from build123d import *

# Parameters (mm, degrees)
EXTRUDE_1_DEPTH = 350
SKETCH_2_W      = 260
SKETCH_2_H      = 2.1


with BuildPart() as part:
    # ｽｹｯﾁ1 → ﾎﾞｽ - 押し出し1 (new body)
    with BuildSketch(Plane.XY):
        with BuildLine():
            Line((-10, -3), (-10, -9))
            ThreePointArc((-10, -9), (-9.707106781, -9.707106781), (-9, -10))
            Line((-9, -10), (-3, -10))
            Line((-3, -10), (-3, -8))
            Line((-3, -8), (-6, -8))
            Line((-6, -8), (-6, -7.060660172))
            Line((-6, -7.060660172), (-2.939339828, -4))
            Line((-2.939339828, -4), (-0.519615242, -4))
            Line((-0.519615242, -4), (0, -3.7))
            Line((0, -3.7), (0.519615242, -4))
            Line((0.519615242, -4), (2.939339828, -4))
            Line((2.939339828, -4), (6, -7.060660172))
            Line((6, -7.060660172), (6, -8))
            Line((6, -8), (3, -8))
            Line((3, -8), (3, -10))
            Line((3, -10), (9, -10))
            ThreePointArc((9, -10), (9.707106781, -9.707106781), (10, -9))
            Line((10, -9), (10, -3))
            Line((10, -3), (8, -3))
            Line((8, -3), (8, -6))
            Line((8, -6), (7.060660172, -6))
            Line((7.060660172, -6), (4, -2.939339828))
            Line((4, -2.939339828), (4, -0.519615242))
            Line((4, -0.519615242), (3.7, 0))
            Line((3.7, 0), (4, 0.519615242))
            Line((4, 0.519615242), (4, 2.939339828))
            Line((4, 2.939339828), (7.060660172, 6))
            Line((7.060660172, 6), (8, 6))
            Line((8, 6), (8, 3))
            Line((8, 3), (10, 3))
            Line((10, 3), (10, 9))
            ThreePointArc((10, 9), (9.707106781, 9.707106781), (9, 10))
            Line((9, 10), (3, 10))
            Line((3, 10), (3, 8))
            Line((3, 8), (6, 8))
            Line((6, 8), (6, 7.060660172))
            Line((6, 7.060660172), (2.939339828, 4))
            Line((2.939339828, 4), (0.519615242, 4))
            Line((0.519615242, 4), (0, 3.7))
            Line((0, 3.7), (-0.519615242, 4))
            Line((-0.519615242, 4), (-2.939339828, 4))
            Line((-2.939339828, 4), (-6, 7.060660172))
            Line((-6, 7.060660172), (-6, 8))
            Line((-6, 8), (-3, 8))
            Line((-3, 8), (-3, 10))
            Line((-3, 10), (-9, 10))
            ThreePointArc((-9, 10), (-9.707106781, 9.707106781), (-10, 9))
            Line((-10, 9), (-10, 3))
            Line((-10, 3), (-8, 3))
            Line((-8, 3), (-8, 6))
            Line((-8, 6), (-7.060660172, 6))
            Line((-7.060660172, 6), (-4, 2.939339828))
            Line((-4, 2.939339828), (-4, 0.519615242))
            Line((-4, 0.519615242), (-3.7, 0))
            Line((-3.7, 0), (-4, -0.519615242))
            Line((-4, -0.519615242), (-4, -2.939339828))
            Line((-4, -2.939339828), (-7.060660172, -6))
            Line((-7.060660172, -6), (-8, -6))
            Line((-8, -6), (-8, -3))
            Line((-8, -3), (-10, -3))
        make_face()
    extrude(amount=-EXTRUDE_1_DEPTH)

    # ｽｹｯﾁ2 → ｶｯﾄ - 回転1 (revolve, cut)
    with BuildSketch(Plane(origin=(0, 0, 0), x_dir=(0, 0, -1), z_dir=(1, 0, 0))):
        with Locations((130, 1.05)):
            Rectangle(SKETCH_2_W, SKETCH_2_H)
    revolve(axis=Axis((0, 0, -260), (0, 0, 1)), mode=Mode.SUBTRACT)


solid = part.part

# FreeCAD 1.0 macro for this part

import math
import FreeCAD as App
import Part
import Sketcher
from FreeCAD import Vector
Q = App.Units.Quantity


def add_polygon(sketch, points):
    """Adds a closed chain of lines whose ends are joined by coincident constraints."""
    first, n = sketch.GeometryCount, len(points)
    for a, b in zip(points, points[1:] + points[:1]):
        sketch.addGeometry(Part.LineSegment(App.Vector(*a, 0), App.Vector(*b, 0)), False)
    for i in range(n):
        sketch.addConstraint(Sketcher.Constraint("Coincident", first + i, 2, first + (i + 1) % n, 1))

doc = App.newDocument("Part")
body = doc.addObject("PartDesign::Body", "Body")

# Sketch on XY plane
sketch1 = doc.addObject("Sketcher::SketchObject", "Sketch")
body.addObject(sketch1)
sketch1.AttachmentSupport = (doc.XY_Plane, [""])
sketch1.MapMode = "FlatFace"
sketch1.addGeometry([
    Part.LineSegment(Vector(-10, -3, 0), Vector(-10, -9, 0)),  # 0
    Part.ArcOfCircle(Part.Circle(Vector(-9, -9, 0), Vector(0, 0, 1), 1), math.radians(-180), math.radians(-90)),  # 1
    Part.LineSegment(Vector(-9, -10, 0), Vector(-3, -10, 0)),  # 2
    Part.LineSegment(Vector(-3, -10, 0), Vector(-3, -8, 0)),  # 3
    Part.LineSegment(Vector(-3, -8, 0), Vector(-6, -8, 0)),  # 4
    Part.LineSegment(Vector(-6, -8, 0), Vector(-6, -7.1, 0)),  # 5
    Part.LineSegment(Vector(-6, -7.1, 0), Vector(-2.9, -4, 0)),  # 6
    Part.LineSegment(Vector(-2.9, -4, 0), Vector(-0.5, -4, 0)),  # 7
    Part.LineSegment(Vector(-0.5, -4, 0), Vector(0, -3.7, 0)),  # 8
    Part.LineSegment(Vector(0, -3.7, 0), Vector(0.5, -4, 0)),  # 9
    Part.LineSegment(Vector(0.5, -4, 0), Vector(2.9, -4, 0)),  # 10
    Part.LineSegment(Vector(2.9, -4, 0), Vector(6, -7.1, 0)),  # 11
    Part.LineSegment(Vector(6, -7.1, 0), Vector(6, -8, 0)),  # 12
    Part.LineSegment(Vector(6, -8, 0), Vector(3, -8, 0)),  # 13
    Part.LineSegment(Vector(3, -8, 0), Vector(3, -10, 0)),  # 14
    Part.LineSegment(Vector(3, -10, 0), Vector(9, -10, 0)),  # 15
    Part.ArcOfCircle(Part.Circle(Vector(9, -9, 0), Vector(0, 0, 1), 1), math.radians(-90), math.radians(0)),  # 16
    Part.LineSegment(Vector(10, -9, 0), Vector(10, -3, 0)),  # 17
    Part.LineSegment(Vector(10, -3, 0), Vector(8, -3, 0)),  # 18
    Part.LineSegment(Vector(8, -3, 0), Vector(8, -6, 0)),  # 19
    Part.LineSegment(Vector(8, -6, 0), Vector(7.1, -6, 0)),  # 20
    Part.LineSegment(Vector(7.1, -6, 0), Vector(4, -2.9, 0)),  # 21
    Part.LineSegment(Vector(4, -2.9, 0), Vector(4, -0.5, 0)),  # 22
    Part.LineSegment(Vector(4, -0.5, 0), Vector(3.7, 0, 0)),  # 23
    Part.LineSegment(Vector(3.7, 0, 0), Vector(4, 0.5, 0)),  # 24
    Part.LineSegment(Vector(4, 0.5, 0), Vector(4, 2.9, 0)),  # 25
    Part.LineSegment(Vector(4, 2.9, 0), Vector(7.1, 6, 0)),  # 26
    Part.LineSegment(Vector(7.1, 6, 0), Vector(8, 6, 0)),  # 27
    Part.LineSegment(Vector(8, 6, 0), Vector(8, 3, 0)),  # 28
    Part.LineSegment(Vector(8, 3, 0), Vector(10, 3, 0)),  # 29
    Part.LineSegment(Vector(10, 3, 0), Vector(10, 9, 0)),  # 30
    Part.ArcOfCircle(Part.Circle(Vector(9, 9, 0), Vector(0, 0, 1), 1), math.radians(0), math.radians(90)),  # 31
    Part.LineSegment(Vector(9, 10, 0), Vector(3, 10, 0)),  # 32
    Part.LineSegment(Vector(3, 10, 0), Vector(3, 8, 0)),  # 33
    Part.LineSegment(Vector(3, 8, 0), Vector(6, 8, 0)),  # 34
    Part.LineSegment(Vector(6, 8, 0), Vector(6, 7.1, 0)),  # 35
    Part.LineSegment(Vector(6, 7.1, 0), Vector(2.9, 4, 0)),  # 36
    Part.LineSegment(Vector(2.9, 4, 0), Vector(0.5, 4, 0)),  # 37
    Part.LineSegment(Vector(0.5, 4, 0), Vector(0, 3.7, 0)),  # 38
    Part.LineSegment(Vector(0, 3.7, 0), Vector(-0.5, 4, 0)),  # 39
    Part.LineSegment(Vector(-0.5, 4, 0), Vector(-2.9, 4, 0)),  # 40
    Part.LineSegment(Vector(-2.9, 4, 0), Vector(-6, 7.1, 0)),  # 41
    Part.LineSegment(Vector(-6, 7.1, 0), Vector(-6, 8, 0)),  # 42
    Part.LineSegment(Vector(-6, 8, 0), Vector(-3, 8, 0)),  # 43
    Part.LineSegment(Vector(-3, 8, 0), Vector(-3, 10, 0)),  # 44
    Part.LineSegment(Vector(-3, 10, 0), Vector(-9, 10, 0)),  # 45
    Part.ArcOfCircle(Part.Circle(Vector(-9, 9, 0), Vector(0, 0, 1), 1), math.radians(90), math.radians(180)),  # 46
    Part.LineSegment(Vector(-10, 9, 0), Vector(-10, 3, 0)),  # 47
    Part.LineSegment(Vector(-10, 3, 0), Vector(-8, 3, 0)),  # 48
    Part.LineSegment(Vector(-8, 3, 0), Vector(-8, 6, 0)),  # 49
    Part.LineSegment(Vector(-8, 6, 0), Vector(-7.1, 6, 0)),  # 50
    Part.LineSegment(Vector(-7.1, 6, 0), Vector(-4, 2.9, 0)),  # 51
    Part.LineSegment(Vector(-4, 2.9, 0), Vector(-4, 0.5, 0)),  # 52
    Part.LineSegment(Vector(-4, 0.5, 0), Vector(-3.7, 0, 0)),  # 53
    Part.LineSegment(Vector(-3.7, 0, 0), Vector(-4, -0.5, 0)),  # 54
    Part.LineSegment(Vector(-4, -0.5, 0), Vector(-4, -2.9, 0)),  # 55
    Part.LineSegment(Vector(-4, -2.9, 0), Vector(-7.1, -6, 0)),  # 56
    Part.LineSegment(Vector(-7.1, -6, 0), Vector(-8, -6, 0)),  # 57
    Part.LineSegment(Vector(-8, -6, 0), Vector(-8, -3, 0)),  # 58
    Part.LineSegment(Vector(-8, -3, 0), Vector(-10, -3, 0)),  # 59
], False)
sketch1.addConstraint([
    Sketcher.Constraint("Tangent", 0, 2, 1, 1),
    Sketcher.Constraint("Tangent", 1, 2, 2, 1),
    Sketcher.Constraint("Coincident", 2, 2, 3, 1),
    Sketcher.Constraint("Coincident", 3, 2, 4, 1),
    Sketcher.Constraint("Coincident", 4, 2, 5, 1),
    Sketcher.Constraint("Coincident", 5, 2, 6, 1),
    Sketcher.Constraint("Coincident", 6, 2, 7, 1),
    Sketcher.Constraint("Coincident", 7, 2, 8, 1),
    Sketcher.Constraint("Coincident", 8, 2, 9, 1),
    Sketcher.Constraint("Coincident", 9, 2, 10, 1),
    Sketcher.Constraint("Coincident", 10, 2, 11, 1),
    Sketcher.Constraint("Coincident", 11, 2, 12, 1),
    Sketcher.Constraint("Coincident", 12, 2, 13, 1),
    Sketcher.Constraint("Coincident", 13, 2, 14, 1),
    Sketcher.Constraint("Coincident", 14, 2, 15, 1),
    Sketcher.Constraint("Tangent", 15, 2, 16, 1),
    Sketcher.Constraint("Tangent", 16, 2, 17, 1),
    Sketcher.Constraint("Coincident", 17, 2, 18, 1),
    Sketcher.Constraint("Coincident", 18, 2, 19, 1),
    Sketcher.Constraint("Coincident", 19, 2, 20, 1),
    Sketcher.Constraint("Coincident", 20, 2, 21, 1),
    Sketcher.Constraint("Coincident", 21, 2, 22, 1),
    Sketcher.Constraint("Coincident", 22, 2, 23, 1),
    Sketcher.Constraint("Coincident", 23, 2, 24, 1),
    Sketcher.Constraint("Coincident", 24, 2, 25, 1),
    Sketcher.Constraint("Coincident", 25, 2, 26, 1),
    Sketcher.Constraint("Coincident", 26, 2, 27, 1),
    Sketcher.Constraint("Coincident", 27, 2, 28, 1),
    Sketcher.Constraint("Coincident", 28, 2, 29, 1),
    Sketcher.Constraint("Coincident", 29, 2, 30, 1),
    Sketcher.Constraint("Tangent", 30, 2, 31, 1),
    Sketcher.Constraint("Tangent", 31, 2, 32, 1),
    Sketcher.Constraint("Coincident", 32, 2, 33, 1),
    Sketcher.Constraint("Coincident", 33, 2, 34, 1),
    Sketcher.Constraint("Coincident", 34, 2, 35, 1),
    Sketcher.Constraint("Coincident", 35, 2, 36, 1),
    Sketcher.Constraint("Coincident", 36, 2, 37, 1),
    Sketcher.Constraint("Coincident", 37, 2, 38, 1),
    Sketcher.Constraint("Coincident", 38, 2, 39, 1),
    Sketcher.Constraint("Coincident", 39, 2, 40, 1),
    Sketcher.Constraint("Coincident", 40, 2, 41, 1),
    Sketcher.Constraint("Coincident", 41, 2, 42, 1),
    Sketcher.Constraint("Coincident", 42, 2, 43, 1),
    Sketcher.Constraint("Coincident", 43, 2, 44, 1),
    Sketcher.Constraint("Coincident", 44, 2, 45, 1),
    Sketcher.Constraint("Tangent", 45, 2, 46, 1),
    Sketcher.Constraint("Tangent", 46, 2, 47, 1),
    Sketcher.Constraint("Coincident", 47, 2, 48, 1),
    Sketcher.Constraint("Coincident", 48, 2, 49, 1),
    Sketcher.Constraint("Coincident", 49, 2, 50, 1),
    Sketcher.Constraint("Coincident", 50, 2, 51, 1),
    Sketcher.Constraint("Coincident", 51, 2, 52, 1),
    Sketcher.Constraint("Coincident", 52, 2, 53, 1),
    Sketcher.Constraint("Coincident", 53, 2, 54, 1),
    Sketcher.Constraint("Coincident", 54, 2, 55, 1),
    Sketcher.Constraint("Coincident", 55, 2, 56, 1),
    Sketcher.Constraint("Coincident", 56, 2, 57, 1),
    Sketcher.Constraint("Coincident", 57, 2, 58, 1),
    Sketcher.Constraint("Coincident", 58, 2, 59, 1),
    Sketcher.Constraint("Coincident", 59, 2, 0, 1),
    Sketcher.Constraint("Vertical", 0),
    Sketcher.Constraint("Horizontal", 2),
    Sketcher.Constraint("Vertical", 3),
    Sketcher.Constraint("Horizontal", 4),
    Sketcher.Constraint("Vertical", 5),
    Sketcher.Constraint("Horizontal", 7),
    Sketcher.Constraint("Horizontal", 10),
    Sketcher.Constraint("Vertical", 12),
    Sketcher.Constraint("Horizontal", 13),
    Sketcher.Constraint("Vertical", 14),
    Sketcher.Constraint("Horizontal", 15),
    Sketcher.Constraint("Vertical", 17),
    Sketcher.Constraint("Horizontal", 18),
    Sketcher.Constraint("Vertical", 19),
    Sketcher.Constraint("Horizontal", 20),
    Sketcher.Constraint("Vertical", 22),
    Sketcher.Constraint("Vertical", 25),
    Sketcher.Constraint("Horizontal", 27),
    Sketcher.Constraint("Vertical", 28),
    Sketcher.Constraint("Horizontal", 29),
    Sketcher.Constraint("Vertical", 30),
    Sketcher.Constraint("Horizontal", 32),
    Sketcher.Constraint("Vertical", 33),
    Sketcher.Constraint("Horizontal", 34),
    Sketcher.Constraint("Vertical", 35),
    Sketcher.Constraint("Horizontal", 37),
    Sketcher.Constraint("Horizontal", 40),
    Sketcher.Constraint("Vertical", 42),
    Sketcher.Constraint("Horizontal", 43),
    Sketcher.Constraint("Vertical", 44),
    Sketcher.Constraint("Horizontal", 45),
    Sketcher.Constraint("Vertical", 47),
    Sketcher.Constraint("Horizontal", 48),
    Sketcher.Constraint("Vertical", 49),
    Sketcher.Constraint("Horizontal", 50),
    Sketcher.Constraint("Vertical", 52),
    Sketcher.Constraint("Vertical", 55),
    Sketcher.Constraint("Horizontal", 57),
    Sketcher.Constraint("Vertical", 58),
    Sketcher.Constraint("Horizontal", 59),
    Sketcher.Constraint("Equal", 1, 16),
    Sketcher.Constraint("Equal", 16, 31),
    Sketcher.Constraint("Equal", 31, 46),
    Sketcher.Constraint("Symmetric", 1, 3, 31, 3, -1, 1),
    Sketcher.Constraint("Symmetric", 16, 3, 46, 3, -1, 1),
    Sketcher.Constraint("Symmetric", 3, 2, 33, 2, -1, 1),
    Sketcher.Constraint("Symmetric", 5, 2, 35, 2, -1, 1),
    Sketcher.Constraint("Symmetric", 6, 2, 36, 2, -1, 1),
    Sketcher.Constraint("Symmetric", 8, 2, 38, 2, -1, 1),
    Sketcher.Constraint("Symmetric", 9, 2, 39, 2, -1, 1),
    Sketcher.Constraint("Symmetric", 11, 2, 41, 2, -1, 1),
    Sketcher.Constraint("Symmetric", 13, 2, 43, 2, -1, 1),
    Sketcher.Constraint("Symmetric", 18, 2, 48, 2, -1, 1),
    Sketcher.Constraint("Symmetric", 20, 2, 50, 2, -1, 1),
    Sketcher.Constraint("Symmetric", 21, 2, 51, 2, -1, 1),
    Sketcher.Constraint("Symmetric", 23, 2, 53, 2, -1, 1),
    Sketcher.Constraint("Symmetric", 24, 2, 54, 2, -1, 1),
    Sketcher.Constraint("Symmetric", 26, 2, 56, 2, -1, 1),
    Sketcher.Constraint("Symmetric", 28, 2, 58, 2, -1, 1),
    Sketcher.Constraint("Symmetric", 1, 3, 16, 3, -2),
    Sketcher.Constraint("Symmetric", 7, 2, 9, 2, -2),
    Sketcher.Constraint("Symmetric", 5, 2, 11, 2, -2),
    Sketcher.Constraint("Symmetric", 3, 2, 13, 2, -2),
    Sketcher.Constraint("Symmetric", 28, 2, 48, 2, -2),
    Sketcher.Constraint("Symmetric", 26, 2, 50, 2, -2),
    Sketcher.Constraint("Symmetric", 25, 2, 51, 2, -2),
    Sketcher.Constraint("PointOnObject", 8, 2, -2),
    Sketcher.Constraint("PointOnObject", 23, 2, -1),
    Sketcher.Constraint("Perpendicular", 6, 11),
    Sketcher.Constraint("Parallel", 11, 21),
    Sketcher.Constraint("Perpendicular", 8, 23),
    Sketcher.Constraint("Perpendicular", 9, 24),
    Sketcher.Constraint("Perpendicular", 21, 26),
    Sketcher.Constraint("Perpendicular", 23, 38),
    Sketcher.Constraint("Perpendicular", 36, 41),
    Sketcher.Constraint("Perpendicular", 38, 53),
    Sketcher.Constraint("Perpendicular", 51, 56),
    Sketcher.Constraint("Equal", 45, 0),
    Sketcher.Constraint("Equal", 59, 3),
    Sketcher.Constraint("Equal", 57, 5),
    Sketcher.Constraint("Equal", 43, 19),
    Sketcher.Constraint("Equal", 40, 22),
    Sketcher.Constraint("Equal", 11, 21),
    Sketcher.Constraint("Equal", 9, 23),
    Sketcher.Constraint("Radius", 1, 1.0),
    Sketcher.Constraint("DistanceX", 2, 1, 2, 2, 6.0),
    Sketcher.Constraint("DistanceX", 4, 2, 4, 1, 3.0),
    Sketcher.Constraint("DistanceX", 18, 2, 18, 1, 2.0),
    Sketcher.Constraint("Angle", 8, Q("30 deg")),
    Sketcher.Constraint("DistanceX", 1, 3, -1, 1, 9.0),
    Sketcher.Constraint("DistanceY", 6, 2, -1, 1, 4.0),
    Sketcher.Constraint("Distance", 8, 0.6),
    Sketcher.Constraint("DistanceX", 20, 2, 20, 1, 0.93934),
])
pad1 = doc.addObject("PartDesign::Pad", "Pad")
body.addObject(pad1)
pad1.Profile = sketch1
pad1.Length = 350
pad1.Reversed = True

# Sketch on YZ plane
sketch2 = doc.addObject("Sketcher::SketchObject", "Sketch001")
body.addObject(sketch2)
sketch2.AttachmentSupport = (doc.YZ_Plane, [""])
sketch2.MapMode = "FlatFace"
add_polygon(sketch2, [(2.1, 0), (0, 0), (0, -260), (2.1, -260)])  # lines 0-3
sketch2.addConstraint([
    Sketcher.Constraint("Horizontal", 0),
    Sketcher.Constraint("Vertical", 1),
    Sketcher.Constraint("Horizontal", 2),
    Sketcher.Constraint("Vertical", 3),
    Sketcher.Constraint("Coincident", 0, 2, -1, 1),
    Sketcher.Constraint("DistanceY", 1, 2, 1, 1, 260.0),
    Sketcher.Constraint("DistanceX", 0, 2, 0, 1, 2.1),
])
groove = doc.addObject("PartDesign::Groove", "Groove")
body.addObject(groove)
groove.Profile = sketch2
groove.ReferenceAxis = (sketch2, ["V_Axis"])
groove.Angle = 360

doc.recompute()
